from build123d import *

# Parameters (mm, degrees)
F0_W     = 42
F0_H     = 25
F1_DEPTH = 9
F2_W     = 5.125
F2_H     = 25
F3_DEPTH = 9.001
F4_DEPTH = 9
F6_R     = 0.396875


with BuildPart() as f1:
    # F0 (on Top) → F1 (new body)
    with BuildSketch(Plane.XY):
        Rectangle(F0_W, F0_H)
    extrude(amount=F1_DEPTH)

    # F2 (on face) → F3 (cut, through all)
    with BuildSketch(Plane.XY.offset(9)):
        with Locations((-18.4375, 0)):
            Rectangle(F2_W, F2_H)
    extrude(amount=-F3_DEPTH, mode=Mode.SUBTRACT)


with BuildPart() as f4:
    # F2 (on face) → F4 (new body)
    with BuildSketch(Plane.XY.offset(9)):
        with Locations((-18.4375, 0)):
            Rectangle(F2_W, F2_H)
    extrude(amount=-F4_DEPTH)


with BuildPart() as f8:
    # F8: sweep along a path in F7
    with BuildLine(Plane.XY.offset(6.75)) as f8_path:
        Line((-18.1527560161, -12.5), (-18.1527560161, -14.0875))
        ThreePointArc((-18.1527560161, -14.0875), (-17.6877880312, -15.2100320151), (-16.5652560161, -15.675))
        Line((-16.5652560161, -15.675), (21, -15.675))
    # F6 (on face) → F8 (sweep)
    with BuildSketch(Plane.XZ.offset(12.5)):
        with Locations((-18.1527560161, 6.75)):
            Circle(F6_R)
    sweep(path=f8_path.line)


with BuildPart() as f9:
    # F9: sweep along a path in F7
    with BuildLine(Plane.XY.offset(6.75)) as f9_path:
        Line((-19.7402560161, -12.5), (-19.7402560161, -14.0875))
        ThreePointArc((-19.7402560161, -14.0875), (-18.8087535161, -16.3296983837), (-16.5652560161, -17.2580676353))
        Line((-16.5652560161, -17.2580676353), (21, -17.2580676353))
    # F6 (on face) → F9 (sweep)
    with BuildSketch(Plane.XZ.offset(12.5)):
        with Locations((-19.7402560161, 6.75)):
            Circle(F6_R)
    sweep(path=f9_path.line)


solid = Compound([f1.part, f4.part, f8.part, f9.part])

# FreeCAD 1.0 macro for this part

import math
import FreeCAD as App
import Part
import Sketcher
Q = App.Units.Quantity


def add_polygon(sketch, points):
    """Adds a closed chain of lines whose ends are joined by coincident constraints."""
    first, n = sketch.GeometryCount, len(points)
    for a, b in zip(points, points[1:] + points[:1]):
        sketch.addGeometry(Part.LineSegment(App.Vector(*a, 0), App.Vector(*b, 0)), False)
    for i in range(n):
        sketch.addConstraint(Sketcher.Constraint("Coincident", first + i, 2, first + (i + 1) % n, 1))

doc = App.newDocument("Part")
params = doc.addObject("Spreadsheet::Sheet", "Params")
for row, (alias, value) in enumerate([
    ("sketch1_width", "42 mm"),
    ("sketch1_height", "25 mm"),
    ("pad1_length", "9 mm"),
    ("sketch2_height", "25 mm"),
    ("sketch3_height", "25 mm"),
    ("pad2_length", "9 mm"),
], start=1):
    params.set(f"A{row}", alias)
    params.set(f"B{row}", "=" + value)
    params.setAlias(f"B{row}", alias)

body = doc.addObject("PartDesign::Body", "Body")

# Sketch on XY plane
sketch1 = doc.addObject("Sketcher::SketchObject", "Sketch")
body.addObject(sketch1)
sketch1.AttachmentSupport = (doc.XY_Plane, [""])
sketch1.MapMode = "FlatFace"
add_polygon(sketch1, [(-21, 12), (-21, -12), (21, -12), (21, 12)])  # lines 0-3
sketch1.addConstraint([
    Sketcher.Constraint("Vertical", 0),
    Sketcher.Constraint("Horizontal", 1),
    Sketcher.Constraint("Vertical", 2),
    Sketcher.Constraint("Horizontal", 3),
    Sketcher.Constraint("Symmetric", 0, 2, 2, 2, -1, 1),
    Sketcher.Constraint("DistanceX", 1, 1, 1, 2, Q("42 mm")),
    Sketcher.Constraint("DistanceY", 0, 2, 0, 1, Q("25 mm")),
])
sketch1.setExpression("Constraints[9]", "Params.sketch1_width")
sketch1.setExpression("Constraints[10]", "Params.sketch1_height")
pad1 = doc.addObject("PartDesign::Pad", "Pad")
body.addObject(pad1)
pad1.Profile = sketch1
pad1.setExpression("Length", "Params.pad1_length")

# Sketch on XY plane
sketch2 = doc.addObject("Sketcher::SketchObject", "Sketch001")
body.addObject(sketch2)
sketch2.AttachmentSupport = (doc.XY_Plane, [""])
sketch2.MapMode = "FlatFace"
sketch2.AttachmentOffset = App.Placement(App.Vector(0, 0, 9), App.Rotation())
add_polygon(sketch2, [(-21, 12), (-21, -12), (-16, -12), (-16, 12)])  # lines 0-3
sketch2.addConstraint([
    Sketcher.Constraint("Vertical", 0),
    Sketcher.Constraint("Horizontal", 1),
    Sketcher.Constraint("Vertical", 2),
    Sketcher.Constraint("Horizontal", 3),
    Sketcher.Constraint("DistanceY", 0, 2, 0, 1, Q("25 mm")),
    Sketcher.Constraint("DistanceX", 0, 2, -1, 1, Q("21 mm")),
    Sketcher.Constraint("DistanceY", 0, 2, -1, 1, Q("12.5 mm")),
    Sketcher.Constraint("DistanceX", 1, 1, 1, 2, Q("5.125 mm")),
])
sketch2.setExpression("Constraints[8]", "Params.sketch2_height")
pocket1 = doc.addObject("PartDesign::Pocket", "Pocket")
body.addObject(pocket1)
pocket1.Profile = sketch2
pocket1.Type = "ThroughAll"
body2 = doc.addObject("PartDesign::Body", "Body001")

# Sketch on XY plane
sketch3 = doc.addObject("Sketcher::SketchObject", "Sketch002")
body2.addObject(sketch3)
sketch3.AttachmentSupport = (doc.getObject("XY_Plane001"), [""])
sketch3.MapMode = "FlatFace"
sketch3.AttachmentOffset = App.Placement(App.Vector(0, 0, 9), App.Rotation())
add_polygon(sketch3, [(-21, 12), (-21, -12), (-16, -12), (-16, 12)])  # lines 0-3
sketch3.addConstraint([
    Sketcher.Constraint("Vertical", 0),
    Sketcher.Constraint("Horizontal", 1),
    Sketcher.Constraint("Vertical", 2),
    Sketcher.Constraint("Horizontal", 3),
    Sketcher.Constraint("DistanceY", 0, 2, 0, 1, Q("25 mm")),
    Sketcher.Constraint("DistanceX", 0, 2, -1, 1, Q("21 mm")),
    Sketcher.Constraint("DistanceY", 0, 2, -1, 1, Q("12.5 mm")),
    Sketcher.Constraint("DistanceX", 1, 1, 1, 2, Q("5.125 mm")),
])
sketch3.setExpression("Constraints[8]", "Params.sketch3_height")
pad2 = doc.addObject("PartDesign::Pad", "Pad001")
body2.addObject(pad2)
pad2.Profile = sketch3
pad2.setExpression("Length", "Params.pad2_length")
pad2.Reversed = True
body3 = doc.addObject("PartDesign::Body", "Body002")

# Sketch on XZ plane
sketch4 = doc.addObject("Sketcher::SketchObject", "Sketch003")
body3.addObject(sketch4)
sketch4.AttachmentSupport = (doc.getObject("XZ_Plane002"), [""])
sketch4.MapMode = "FlatFace"
sketch4.AttachmentOffset = App.Placement(App.Vector(0, 0, 12.5), App.Rotation())
sketch4.addGeometry(Part.Circle(App.Vector(-18.15, 6.75, 0), App.Vector(0, 0, 1), 0.4), False)
sketch4.addConstraint([
    Sketcher.Constraint("Diameter", 0, Q("0.79375 mm")),
    Sketcher.Constraint("DistanceY", -1, 1, 0, 3, Q("6.75 mm")),
    Sketcher.Constraint("DistanceX", 0, 3, -1, 1, Q("18.152756 mm")),
])

# Sketch on XY plane
sketch5 = doc.addObject("Sketcher::SketchObject", "Sketch004")
body3.addObject(sketch5)
sketch5.AttachmentSupport = (doc.getObject("XY_Plane002"), [""])
sketch5.MapMode = "FlatFace"
sketch5.AttachmentOffset = App.Placement(App.Vector(0, 0, 6.75), App.Rotation())
sketch5.addGeometry([
    Part.LineSegment(App.Vector(-18.2, -12.5, 0), App.Vector(-18.2, -14.1, 0)),
    Part.ArcOfCircle(Part.Circle(App.Vector(-16.6, -14.1, 0), App.Vector(0, 0, 1), 1.6), math.radians(180), math.radians(270)),
    Part.LineSegment(App.Vector(-16.6, -15.7, 0), App.Vector(21, -15.7, 0)),
], False)
sketch5.addConstraint([
    Sketcher.Constraint("Tangent", 0, 2, 1, 1),
    Sketcher.Constraint("Tangent", 1, 2, 2, 1),
    Sketcher.Constraint("Vertical", 0),
    Sketcher.Constraint("Horizontal", 2),
    Sketcher.Constraint("DistanceX", -1, 1, 2, 2, Q("21 mm")),
    Sketcher.Constraint("DistanceY", 0, 1, -1, 1, Q("12.5 mm")),
    Sketcher.Constraint("Radius", 1, Q("1.5875 mm")),
    Sketcher.Constraint("DistanceY", 0, 2, 0, 1, Q("1.5875 mm")),
    Sketcher.Constraint("DistanceX", 2, 1, 2, 2, Q("37.565256 mm")),
])
doc.recompute()

additivepipe = doc.addObject("PartDesign::AdditivePipe", "AdditivePipe")
body3.addObject(additivepipe)
additivepipe.Profile = sketch4
additivepipe.Spine = (sketch5, ["Edge1", "Edge2", "Edge3"])
body4 = doc.addObject("PartDesign::Body", "Body003")

# Sketch on XZ plane
sketch6 = doc.addObject("Sketcher::SketchObject", "Sketch005")
body4.addObject(sketch6)
sketch6.AttachmentSupport = (doc.getObject("XZ_Plane003"), [""])
sketch6.MapMode = "FlatFace"
sketch6.AttachmentOffset = App.Placement(App.Vector(0, 0, 12.5), App.Rotation())
sketch6.addGeometry(Part.Circle(App.Vector(-19.74, 6.75, 0), App.Vector(0, 0, 1), 0.4), False)
sketch6.addConstraint([
    Sketcher.Constraint("Diameter", 0, Q("0.79375 mm")),
    Sketcher.Constraint("DistanceY", -1, 1, 0, 3, Q("6.75 mm")),
    Sketcher.Constraint("DistanceX", 0, 3, -1, 1, Q("19.740256 mm")),
])

# Sketch on XY plane
sketch7 = doc.addObject("Sketcher::SketchObject", "Sketch006")
body4.addObject(sketch7)
sketch7.AttachmentSupport = (doc.getObject("XY_Plane003"), [""])
sketch7.MapMode = "FlatFace"
sketch7.AttachmentOffset = App.Placement(App.Vector(0, 0, 6.75), App.Rotation())
sketch7.addGeometry([
    Part.LineSegment(App.Vector(-19.7, -12.5, 0), App.Vector(-19.7, -14.1, 0)),
    Part.ArcOfCircle(Part.Circle(App.Vector(-16.6, -14.1, 0), App.Vector(0, 0, 1), 3.2), math.radians(-180), math.radians(-90)),
    Part.LineSegment(App.Vector(-16.6, -17.3, 0), App.Vector(21, -17.3, 0)),
], False)
sketch7.addConstraint([
    Sketcher.Constraint("Coincident", 0, 2, 1, 1),
    Sketcher.Constraint("Tangent", 1, 2, 2, 1),
    Sketcher.Constraint("Vertical", 0),
    Sketcher.Constraint("Horizontal", 2),
    Sketcher.Constraint("DistanceX", -1, 1, 2, 2, Q("21 mm")),
    Sketcher.Constraint("DistanceY", 0, 1, -1, 1, Q("12.5 mm")),
    Sketcher.Constraint("DistanceY", 0, 2, 0, 1, Q("1.5875 mm")),
    Sketcher.Constraint("Radius", 1, Q("3.175003 mm")),
    Sketcher.Constraint("DistanceX", 2, 1, 2, 2, Q("37.565256 mm")),
    Sketcher.Constraint("DistanceY", 1, 3, -1, 1, Q("14.083065 mm")),
])
doc.recompute()

additivepipe2 = doc.addObject("PartDesign::AdditivePipe", "AdditivePipe001")
body4.addObject(additivepipe2)
additivepipe2.Profile = sketch6
additivepipe2.Spine = (sketch7, ["Edge1", "Edge2", "Edge3"])

doc.recompute()
